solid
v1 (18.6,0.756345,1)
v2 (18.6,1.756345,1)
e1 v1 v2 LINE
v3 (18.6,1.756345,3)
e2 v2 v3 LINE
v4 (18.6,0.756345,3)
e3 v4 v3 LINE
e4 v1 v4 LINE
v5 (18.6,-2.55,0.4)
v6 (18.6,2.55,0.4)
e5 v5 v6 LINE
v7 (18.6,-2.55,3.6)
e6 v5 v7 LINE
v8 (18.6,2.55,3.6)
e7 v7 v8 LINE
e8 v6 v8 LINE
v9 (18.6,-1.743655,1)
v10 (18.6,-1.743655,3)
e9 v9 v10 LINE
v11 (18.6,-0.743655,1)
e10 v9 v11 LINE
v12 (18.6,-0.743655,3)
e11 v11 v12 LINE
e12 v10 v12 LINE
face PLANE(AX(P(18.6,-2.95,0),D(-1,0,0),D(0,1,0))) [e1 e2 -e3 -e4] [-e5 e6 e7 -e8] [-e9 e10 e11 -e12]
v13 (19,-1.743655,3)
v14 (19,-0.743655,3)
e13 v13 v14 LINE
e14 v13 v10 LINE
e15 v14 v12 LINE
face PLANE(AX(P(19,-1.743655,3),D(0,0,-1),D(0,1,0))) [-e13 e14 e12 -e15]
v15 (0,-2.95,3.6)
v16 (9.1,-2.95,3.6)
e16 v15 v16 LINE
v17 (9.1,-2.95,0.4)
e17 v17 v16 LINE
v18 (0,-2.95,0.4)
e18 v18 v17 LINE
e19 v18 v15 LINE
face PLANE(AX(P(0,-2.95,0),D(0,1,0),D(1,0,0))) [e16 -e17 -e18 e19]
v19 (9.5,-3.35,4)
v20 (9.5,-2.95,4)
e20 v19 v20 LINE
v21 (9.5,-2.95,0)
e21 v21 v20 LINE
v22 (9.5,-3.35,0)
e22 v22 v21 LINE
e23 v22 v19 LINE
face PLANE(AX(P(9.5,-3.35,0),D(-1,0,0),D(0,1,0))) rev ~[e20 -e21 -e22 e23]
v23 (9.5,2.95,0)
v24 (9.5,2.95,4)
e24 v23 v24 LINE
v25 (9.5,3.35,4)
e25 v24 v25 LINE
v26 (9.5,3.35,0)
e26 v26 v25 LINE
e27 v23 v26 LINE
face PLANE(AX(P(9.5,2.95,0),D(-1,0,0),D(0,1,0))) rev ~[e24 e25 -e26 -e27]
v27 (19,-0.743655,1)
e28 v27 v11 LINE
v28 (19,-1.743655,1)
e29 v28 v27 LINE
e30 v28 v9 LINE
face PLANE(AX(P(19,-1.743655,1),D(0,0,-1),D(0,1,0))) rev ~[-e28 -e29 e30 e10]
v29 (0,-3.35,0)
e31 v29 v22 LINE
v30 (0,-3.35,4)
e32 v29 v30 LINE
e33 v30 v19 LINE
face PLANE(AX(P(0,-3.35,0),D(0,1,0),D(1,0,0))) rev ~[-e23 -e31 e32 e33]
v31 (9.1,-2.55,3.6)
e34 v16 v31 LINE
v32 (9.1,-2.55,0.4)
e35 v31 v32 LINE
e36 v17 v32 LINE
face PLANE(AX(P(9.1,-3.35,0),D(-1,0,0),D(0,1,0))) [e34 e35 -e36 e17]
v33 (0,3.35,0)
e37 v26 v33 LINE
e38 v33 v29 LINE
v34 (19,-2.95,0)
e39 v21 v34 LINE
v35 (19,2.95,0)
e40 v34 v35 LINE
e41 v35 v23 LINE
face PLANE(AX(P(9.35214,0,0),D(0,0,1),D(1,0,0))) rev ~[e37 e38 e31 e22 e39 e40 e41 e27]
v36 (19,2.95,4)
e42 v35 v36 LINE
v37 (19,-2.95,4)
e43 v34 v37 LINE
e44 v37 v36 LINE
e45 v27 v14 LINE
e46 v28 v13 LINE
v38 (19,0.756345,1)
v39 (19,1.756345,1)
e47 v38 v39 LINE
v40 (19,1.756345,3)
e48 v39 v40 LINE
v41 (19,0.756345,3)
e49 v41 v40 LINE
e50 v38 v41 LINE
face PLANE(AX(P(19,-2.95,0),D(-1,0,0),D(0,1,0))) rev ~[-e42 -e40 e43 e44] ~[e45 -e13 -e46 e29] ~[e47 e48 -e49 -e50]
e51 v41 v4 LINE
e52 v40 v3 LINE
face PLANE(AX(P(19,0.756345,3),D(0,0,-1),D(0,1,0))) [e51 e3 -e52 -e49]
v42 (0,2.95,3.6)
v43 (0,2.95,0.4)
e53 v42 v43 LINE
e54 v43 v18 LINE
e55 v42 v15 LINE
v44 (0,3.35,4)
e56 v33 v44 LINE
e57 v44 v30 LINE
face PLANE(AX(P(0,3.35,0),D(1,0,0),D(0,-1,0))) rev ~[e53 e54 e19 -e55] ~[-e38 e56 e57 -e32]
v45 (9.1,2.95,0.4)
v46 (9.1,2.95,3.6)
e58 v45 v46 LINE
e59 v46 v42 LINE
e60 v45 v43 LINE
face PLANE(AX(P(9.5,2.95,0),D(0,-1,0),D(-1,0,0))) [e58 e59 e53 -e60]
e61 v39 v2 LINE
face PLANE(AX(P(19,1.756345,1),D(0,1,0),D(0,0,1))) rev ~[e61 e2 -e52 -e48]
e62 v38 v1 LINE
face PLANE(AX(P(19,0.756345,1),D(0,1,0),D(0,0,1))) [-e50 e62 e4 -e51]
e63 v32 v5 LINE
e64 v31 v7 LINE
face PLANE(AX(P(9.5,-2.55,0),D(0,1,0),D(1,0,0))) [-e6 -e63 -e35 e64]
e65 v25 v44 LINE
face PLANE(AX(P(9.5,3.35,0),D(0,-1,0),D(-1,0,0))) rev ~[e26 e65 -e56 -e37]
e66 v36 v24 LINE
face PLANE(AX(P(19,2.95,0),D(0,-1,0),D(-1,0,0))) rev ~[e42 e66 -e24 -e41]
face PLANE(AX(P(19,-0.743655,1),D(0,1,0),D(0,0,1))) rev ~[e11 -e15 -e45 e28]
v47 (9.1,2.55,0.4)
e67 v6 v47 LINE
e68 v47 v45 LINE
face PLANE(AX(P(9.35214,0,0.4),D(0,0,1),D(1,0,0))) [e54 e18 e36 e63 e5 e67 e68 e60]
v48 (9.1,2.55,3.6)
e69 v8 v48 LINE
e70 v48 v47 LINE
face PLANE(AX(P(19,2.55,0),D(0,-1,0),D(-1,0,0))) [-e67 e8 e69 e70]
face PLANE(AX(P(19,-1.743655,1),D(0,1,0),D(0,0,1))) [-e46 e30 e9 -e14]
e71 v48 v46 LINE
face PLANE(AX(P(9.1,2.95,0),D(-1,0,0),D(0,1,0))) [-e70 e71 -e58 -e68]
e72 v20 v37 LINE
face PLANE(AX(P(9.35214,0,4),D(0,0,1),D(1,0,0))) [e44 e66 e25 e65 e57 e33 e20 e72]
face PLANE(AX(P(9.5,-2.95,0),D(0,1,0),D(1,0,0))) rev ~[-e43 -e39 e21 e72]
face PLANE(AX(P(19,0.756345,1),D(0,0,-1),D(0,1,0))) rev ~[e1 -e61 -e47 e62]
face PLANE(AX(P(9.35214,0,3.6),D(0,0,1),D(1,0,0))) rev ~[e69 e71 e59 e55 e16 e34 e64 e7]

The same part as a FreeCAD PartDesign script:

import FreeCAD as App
import Part
import Sketcher

V = App.Vector


def faces_at(feature, points):
    """Names of the faces that lie closest to the given points."""
    faces = feature.Shape.Faces
    near = lambda p: min(range(len(faces)), key=lambda i: faces[i].distToShape(Part.Vertex(*p))[0])
    return sorted({f"Face{near(p) + 1}" for p in points})

doc = App.newDocument("Part")
body = doc.addObject("PartDesign::Body", "Body")

# Sketch on XY plane
sketch1 = body.newObject("Sketcher::SketchObject", "Sketch")
sketch1.AttachmentSupport = (doc.getObject("XY_Plane"), [""])
sketch1.MapMode = "FlatFace"
sketch1.addGeometry([
    Part.LineSegment(V(0, 3.35, 0), V(0, -3.35, 0)),  # 0
    Part.LineSegment(V(0, -3.35, 0), V(9.5, -3.35, 0)),  # 1
    Part.LineSegment(V(9.5, -3.35, 0), V(9.5, -2.95, 0)),  # 2
    Part.LineSegment(V(9.5, -2.95, 0), V(19, -2.95, 0)),  # 3
    Part.LineSegment(V(19, -2.95, 0), V(19, 2.95, 0)),  # 4
    Part.LineSegment(V(19, 2.95, 0), V(9.5, 2.95, 0)),  # 5
    Part.LineSegment(V(9.5, 2.95, 0), V(9.5, 3.35, 0)),  # 6
    Part.LineSegment(V(9.5, 3.35, 0), V(0, 3.35, 0)),  # 7
], False)
sketch1.addConstraint([
    Sketcher.Constraint("Coincident", 0, 2, 1, 1),
    Sketcher.Constraint("Coincident", 1, 2, 2, 1),
    Sketcher.Constraint("Coincident", 2, 2, 3, 1),
    Sketcher.Constraint("Coincident", 3, 2, 4, 1),
    Sketcher.Constraint("Coincident", 4, 2, 5, 1),
    Sketcher.Constraint("Coincident", 5, 2, 6, 1),
    Sketcher.Constraint("Coincident", 6, 2, 7, 1),
    Sketcher.Constraint("Coincident", 7, 2, 0, 1),
    Sketcher.Constraint("Vertical", 0),
    Sketcher.Constraint("Horizontal", 1),
    Sketcher.Constraint("Vertical", 2),
    Sketcher.Constraint("Horizontal", 3),
    Sketcher.Constraint("Vertical", 4),
    Sketcher.Constraint("Horizontal", 5),
    Sketcher.Constraint("Vertical", 6),
    Sketcher.Constraint("Horizontal", 7),
    Sketcher.Constraint("Symmetric", 0, 2, 7, 2, -1, 1),
    Sketcher.Constraint("Symmetric", 2, 2, 5, 2, -1),
    Sketcher.Constraint("Equal", 1, 3),
    Sketcher.Constraint("DistanceX", 1, 1, 1, 2, 9.5),
    Sketcher.Constraint("DistanceY", 0, 2, 0, 1, 6.7),
    Sketcher.Constraint("DistanceY", 2, 1, 2, 2, 0.4),
])
pad1 = body.newObject("PartDesign::Pad", "Pad")
pad1.Profile = sketch1
pad1.Length = 4
doc.recompute()

thickness = body.newObject("PartDesign::Thickness", "Thickness")
thickness.Base = (pad1, faces_at(pad1, [(0, 0, 2)]))
thickness.Value = 0.4
thickness.Reversed = True
thickness.Join = "Intersection"

# Sketch on YZ plane
sketch2 = body.newObject("Sketcher::SketchObject", "Sketch001")
sketch2.AttachmentSupport = (doc.getObject("YZ_Plane"), [""])
sketch2.MapMode = "FlatFace"
sketch2.AttachmentOffset = App.Placement(V(0, 0, 19), App.Rotation())
sketch2.addGeometry([
    Part.LineSegment(V(-1.7, 3, 0), V(-1.7, 1, 0)),  # 0
    Part.LineSegment(V(-1.7, 1, 0), V(-0.7, 1, 0)),  # 1
    Part.LineSegment(V(-0.7, 1, 0), V(-0.7, 3, 0)),  # 2
    Part.LineSegment(V(-0.7, 3, 0), V(-1.7, 3, 0)),  # 3
    Part.LineSegment(V(0.8, 3, 0), V(0.8, 1, 0)),  # 4
    Part.LineSegment(V(0.8, 1, 0), V(1.8, 1, 0)),  # 5
    Part.LineSegment(V(1.8, 1, 0), V(1.8, 3, 0)),  # 6
    Part.LineSegment(V(1.8, 3, 0), V(0.8, 3, 0)),  # 7
], False)
sketch2.addConstraint([
    Sketcher.Constraint("Coincident", 0, 2, 1, 1),
    Sketcher.Constraint("Coincident", 1, 2, 2, 1),
    Sketcher.Constraint("Coincident", 2, 2, 3, 1),
    Sketcher.Constraint("Coincident", 3, 2, 0, 1),
    Sketcher.Constraint("Coincident", 4, 2, 5, 1),
    Sketcher.Constraint("Coincident", 5, 2, 6, 1),
    Sketcher.Constraint("Coincident", 6, 2, 7, 1),
    Sketcher.Constraint("Coincident", 7, 2, 4, 1),
    Sketcher.Constraint("Vertical", 0),
    Sketcher.Constraint("Horizontal", 1),
    Sketcher.Constraint("Vertical", 2),
    Sketcher.Constraint("Horizontal", 3),
    Sketcher.Constraint("Vertical", 4),
    Sketcher.Constraint("Horizontal", 5),
    Sketcher.Constraint("Vertical", 6),
    Sketcher.Constraint("Horizontal", 7),
    Sketcher.Constraint("Horizontal", 1, 2, 4, 2),
    Sketcher.Constraint("Horizontal", 3, 2, 6, 2),
    Sketcher.Constraint("Equal", 3, 5),
    Sketcher.Constraint("DistanceX", 1, 1, 1, 2, 1.0),
    Sketcher.Constraint("DistanceY", 0, 2, 0, 1, 2.0),
    Sketcher.Constraint("DistanceY", -1, 1, 0, 2, 1.0),
    Sketcher.Constraint("DistanceX", 1, 2, 4, 2, 1.5),
    Sketcher.Constraint("DistanceX", 0, 2, -1, 1, 1.743655),
])
pocket1 = body.newObject("PartDesign::Pocket", "Pocket")
pocket1.Profile = sketch2
pocket1.Type = "ThroughAll"

doc.recompute()
